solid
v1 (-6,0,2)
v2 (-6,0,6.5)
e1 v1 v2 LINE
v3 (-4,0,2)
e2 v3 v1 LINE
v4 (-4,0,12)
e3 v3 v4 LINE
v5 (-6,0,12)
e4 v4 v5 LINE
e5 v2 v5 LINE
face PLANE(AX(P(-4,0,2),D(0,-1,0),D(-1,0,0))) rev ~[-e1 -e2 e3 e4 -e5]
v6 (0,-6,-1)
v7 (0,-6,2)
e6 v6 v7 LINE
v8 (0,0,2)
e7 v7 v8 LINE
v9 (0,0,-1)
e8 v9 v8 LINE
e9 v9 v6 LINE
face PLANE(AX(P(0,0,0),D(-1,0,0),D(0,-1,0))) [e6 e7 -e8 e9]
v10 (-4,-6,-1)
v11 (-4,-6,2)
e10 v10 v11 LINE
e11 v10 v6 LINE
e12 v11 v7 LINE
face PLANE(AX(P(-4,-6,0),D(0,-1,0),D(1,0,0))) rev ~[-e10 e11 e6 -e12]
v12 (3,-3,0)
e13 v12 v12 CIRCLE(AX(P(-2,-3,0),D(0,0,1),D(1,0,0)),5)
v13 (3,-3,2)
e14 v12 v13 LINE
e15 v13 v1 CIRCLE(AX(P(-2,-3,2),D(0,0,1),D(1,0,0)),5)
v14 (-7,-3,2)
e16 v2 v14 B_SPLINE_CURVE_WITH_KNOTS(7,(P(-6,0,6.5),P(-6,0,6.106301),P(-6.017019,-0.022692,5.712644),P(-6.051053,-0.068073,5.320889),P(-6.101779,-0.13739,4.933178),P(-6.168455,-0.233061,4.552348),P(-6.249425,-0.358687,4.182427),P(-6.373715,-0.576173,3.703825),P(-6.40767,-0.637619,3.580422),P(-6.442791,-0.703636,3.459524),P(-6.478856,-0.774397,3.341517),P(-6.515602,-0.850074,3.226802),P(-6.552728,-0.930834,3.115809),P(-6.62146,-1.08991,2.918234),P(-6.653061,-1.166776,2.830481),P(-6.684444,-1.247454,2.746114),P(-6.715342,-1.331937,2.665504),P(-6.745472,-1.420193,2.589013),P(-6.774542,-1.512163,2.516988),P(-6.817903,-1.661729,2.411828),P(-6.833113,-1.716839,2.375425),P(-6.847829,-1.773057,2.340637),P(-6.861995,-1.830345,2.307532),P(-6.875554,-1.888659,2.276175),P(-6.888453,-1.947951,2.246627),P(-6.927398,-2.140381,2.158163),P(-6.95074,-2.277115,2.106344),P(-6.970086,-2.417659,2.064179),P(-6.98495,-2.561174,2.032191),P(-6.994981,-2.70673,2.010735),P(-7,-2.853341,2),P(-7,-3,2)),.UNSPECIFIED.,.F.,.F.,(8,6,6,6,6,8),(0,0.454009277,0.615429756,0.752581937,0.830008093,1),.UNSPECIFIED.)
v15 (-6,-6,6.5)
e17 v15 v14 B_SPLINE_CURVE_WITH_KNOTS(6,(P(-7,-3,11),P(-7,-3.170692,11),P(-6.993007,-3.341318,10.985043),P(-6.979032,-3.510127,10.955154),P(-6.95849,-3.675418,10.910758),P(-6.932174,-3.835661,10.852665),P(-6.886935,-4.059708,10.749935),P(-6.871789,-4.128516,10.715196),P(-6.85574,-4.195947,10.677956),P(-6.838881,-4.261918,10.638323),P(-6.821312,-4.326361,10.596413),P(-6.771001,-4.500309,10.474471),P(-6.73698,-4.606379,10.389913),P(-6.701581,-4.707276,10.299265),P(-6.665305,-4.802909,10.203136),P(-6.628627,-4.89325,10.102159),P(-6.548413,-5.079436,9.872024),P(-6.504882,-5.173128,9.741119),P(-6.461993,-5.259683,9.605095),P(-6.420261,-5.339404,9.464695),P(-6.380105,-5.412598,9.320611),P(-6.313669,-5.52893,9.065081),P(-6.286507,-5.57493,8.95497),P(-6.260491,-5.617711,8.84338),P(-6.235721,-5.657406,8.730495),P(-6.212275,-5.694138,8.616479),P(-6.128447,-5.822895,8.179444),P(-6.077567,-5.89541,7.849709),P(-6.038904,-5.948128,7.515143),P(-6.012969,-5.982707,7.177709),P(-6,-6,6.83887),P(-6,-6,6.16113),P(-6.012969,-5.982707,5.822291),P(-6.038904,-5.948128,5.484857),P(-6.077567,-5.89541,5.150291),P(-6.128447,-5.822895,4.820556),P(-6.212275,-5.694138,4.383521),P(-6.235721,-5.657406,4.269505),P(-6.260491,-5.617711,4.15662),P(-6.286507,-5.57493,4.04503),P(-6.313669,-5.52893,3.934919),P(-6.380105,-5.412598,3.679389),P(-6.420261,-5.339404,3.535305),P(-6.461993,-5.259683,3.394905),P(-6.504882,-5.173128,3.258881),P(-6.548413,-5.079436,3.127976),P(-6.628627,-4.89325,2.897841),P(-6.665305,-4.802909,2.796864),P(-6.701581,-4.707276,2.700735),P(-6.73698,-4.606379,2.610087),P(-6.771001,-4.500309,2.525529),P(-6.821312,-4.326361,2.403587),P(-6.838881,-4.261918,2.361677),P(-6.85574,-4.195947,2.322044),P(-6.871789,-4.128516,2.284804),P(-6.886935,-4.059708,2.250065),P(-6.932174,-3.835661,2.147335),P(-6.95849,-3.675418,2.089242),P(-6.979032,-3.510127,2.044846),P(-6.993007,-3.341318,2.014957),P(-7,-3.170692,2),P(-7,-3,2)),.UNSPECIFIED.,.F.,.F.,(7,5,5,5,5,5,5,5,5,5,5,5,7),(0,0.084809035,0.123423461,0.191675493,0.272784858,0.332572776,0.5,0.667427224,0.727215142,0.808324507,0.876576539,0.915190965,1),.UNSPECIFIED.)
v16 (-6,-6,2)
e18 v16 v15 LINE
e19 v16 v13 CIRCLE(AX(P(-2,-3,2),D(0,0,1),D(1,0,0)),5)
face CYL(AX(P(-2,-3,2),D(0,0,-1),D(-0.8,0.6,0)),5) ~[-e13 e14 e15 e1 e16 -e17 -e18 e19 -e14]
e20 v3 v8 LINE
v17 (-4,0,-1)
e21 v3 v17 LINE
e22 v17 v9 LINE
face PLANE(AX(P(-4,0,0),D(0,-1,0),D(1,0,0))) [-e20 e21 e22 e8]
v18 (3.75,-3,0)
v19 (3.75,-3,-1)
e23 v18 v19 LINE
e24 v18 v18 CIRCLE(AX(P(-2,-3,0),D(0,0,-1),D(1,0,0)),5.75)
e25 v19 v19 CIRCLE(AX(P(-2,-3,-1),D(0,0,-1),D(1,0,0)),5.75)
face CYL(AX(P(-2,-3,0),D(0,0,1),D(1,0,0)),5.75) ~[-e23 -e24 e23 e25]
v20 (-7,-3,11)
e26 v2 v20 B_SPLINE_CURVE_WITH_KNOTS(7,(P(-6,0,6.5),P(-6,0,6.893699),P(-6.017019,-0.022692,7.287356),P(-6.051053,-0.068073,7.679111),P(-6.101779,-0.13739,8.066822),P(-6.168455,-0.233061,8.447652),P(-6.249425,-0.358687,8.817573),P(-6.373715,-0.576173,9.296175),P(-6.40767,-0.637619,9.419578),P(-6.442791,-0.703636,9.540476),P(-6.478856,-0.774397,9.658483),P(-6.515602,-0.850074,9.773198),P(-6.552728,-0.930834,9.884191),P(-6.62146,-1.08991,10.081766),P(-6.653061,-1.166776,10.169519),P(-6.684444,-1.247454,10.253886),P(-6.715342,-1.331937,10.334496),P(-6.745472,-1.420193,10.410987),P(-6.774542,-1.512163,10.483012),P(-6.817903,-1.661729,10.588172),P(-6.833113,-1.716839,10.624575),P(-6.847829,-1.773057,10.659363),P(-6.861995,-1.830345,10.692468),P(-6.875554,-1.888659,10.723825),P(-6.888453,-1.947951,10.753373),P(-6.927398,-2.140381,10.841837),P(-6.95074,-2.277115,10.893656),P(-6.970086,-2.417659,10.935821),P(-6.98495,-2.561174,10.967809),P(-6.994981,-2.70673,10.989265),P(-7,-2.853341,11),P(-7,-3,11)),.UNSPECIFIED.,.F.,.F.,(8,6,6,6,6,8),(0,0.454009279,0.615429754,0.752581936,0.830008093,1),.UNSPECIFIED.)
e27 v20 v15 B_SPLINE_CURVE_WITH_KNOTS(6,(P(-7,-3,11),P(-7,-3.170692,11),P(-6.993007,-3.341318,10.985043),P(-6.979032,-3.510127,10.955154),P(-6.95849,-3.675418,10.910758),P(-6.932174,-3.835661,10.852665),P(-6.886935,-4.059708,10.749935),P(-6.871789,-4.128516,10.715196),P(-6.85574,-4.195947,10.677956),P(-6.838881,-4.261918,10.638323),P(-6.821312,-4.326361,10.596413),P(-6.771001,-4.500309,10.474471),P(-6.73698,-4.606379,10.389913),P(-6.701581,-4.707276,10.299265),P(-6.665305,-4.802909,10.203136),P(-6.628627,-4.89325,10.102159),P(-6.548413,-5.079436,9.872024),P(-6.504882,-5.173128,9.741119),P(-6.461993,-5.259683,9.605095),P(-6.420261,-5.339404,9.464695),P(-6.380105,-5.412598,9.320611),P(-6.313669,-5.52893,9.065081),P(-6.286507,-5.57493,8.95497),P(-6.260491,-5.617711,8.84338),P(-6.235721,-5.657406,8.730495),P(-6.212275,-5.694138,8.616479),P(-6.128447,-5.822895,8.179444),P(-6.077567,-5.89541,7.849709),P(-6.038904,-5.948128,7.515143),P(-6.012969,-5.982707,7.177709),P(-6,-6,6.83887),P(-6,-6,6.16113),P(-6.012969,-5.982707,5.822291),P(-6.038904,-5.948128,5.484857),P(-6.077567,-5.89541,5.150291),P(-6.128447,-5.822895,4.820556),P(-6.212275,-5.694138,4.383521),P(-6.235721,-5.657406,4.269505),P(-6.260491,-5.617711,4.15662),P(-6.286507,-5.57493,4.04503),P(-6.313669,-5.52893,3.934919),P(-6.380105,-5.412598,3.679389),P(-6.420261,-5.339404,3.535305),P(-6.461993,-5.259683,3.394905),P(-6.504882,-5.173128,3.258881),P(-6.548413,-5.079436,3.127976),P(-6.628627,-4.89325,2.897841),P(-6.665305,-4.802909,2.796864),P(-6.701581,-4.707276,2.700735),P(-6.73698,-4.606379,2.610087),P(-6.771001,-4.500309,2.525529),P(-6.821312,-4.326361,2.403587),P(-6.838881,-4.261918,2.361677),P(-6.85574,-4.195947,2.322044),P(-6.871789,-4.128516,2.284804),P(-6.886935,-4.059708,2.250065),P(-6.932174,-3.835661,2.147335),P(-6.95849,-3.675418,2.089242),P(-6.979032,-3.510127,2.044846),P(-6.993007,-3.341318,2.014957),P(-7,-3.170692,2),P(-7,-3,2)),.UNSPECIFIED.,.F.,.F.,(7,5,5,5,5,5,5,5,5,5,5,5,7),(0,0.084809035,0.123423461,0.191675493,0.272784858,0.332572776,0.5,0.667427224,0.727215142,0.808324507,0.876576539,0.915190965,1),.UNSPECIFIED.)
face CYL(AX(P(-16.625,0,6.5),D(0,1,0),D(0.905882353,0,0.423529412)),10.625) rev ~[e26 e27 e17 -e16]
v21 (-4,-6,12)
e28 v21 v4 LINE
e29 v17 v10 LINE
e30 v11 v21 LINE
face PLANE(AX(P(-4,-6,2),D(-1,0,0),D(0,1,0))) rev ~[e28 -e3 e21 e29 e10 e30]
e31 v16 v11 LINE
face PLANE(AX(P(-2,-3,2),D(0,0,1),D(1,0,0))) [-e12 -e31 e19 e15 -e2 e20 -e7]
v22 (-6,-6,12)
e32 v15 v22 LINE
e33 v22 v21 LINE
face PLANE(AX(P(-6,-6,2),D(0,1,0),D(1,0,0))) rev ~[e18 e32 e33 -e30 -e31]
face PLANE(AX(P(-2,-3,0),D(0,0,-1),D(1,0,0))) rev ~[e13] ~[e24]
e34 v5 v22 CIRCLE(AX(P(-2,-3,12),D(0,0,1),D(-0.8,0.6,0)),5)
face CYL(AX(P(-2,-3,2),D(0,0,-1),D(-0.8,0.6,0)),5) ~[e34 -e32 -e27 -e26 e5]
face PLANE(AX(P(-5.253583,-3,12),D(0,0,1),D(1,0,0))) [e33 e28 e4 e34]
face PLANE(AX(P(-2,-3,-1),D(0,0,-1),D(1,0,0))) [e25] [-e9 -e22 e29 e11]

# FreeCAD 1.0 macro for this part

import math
import FreeCAD as App
import Part
import Sketcher
from FreeCAD import Vector
Q = App.Units.Quantity

doc = App.newDocument("Part")
body = doc.addObject("PartDesign::Body", "Body")

sketch1 = body.newObject("Sketcher::SketchObject", "Sketch")
sketch1.AttachmentSupport = (doc.getObject("XY_Plane"), [""])
sketch1.MapMode = "FlatFace"
sketch1.addGeometry([
    Part.Circle(Vector(-2, -3, 0), Vector(0, 0, 1), 5),
    Part.LineSegment(Vector(0, -6, 0), Vector(-4, -6, 0)),
    Part.LineSegment(Vector(-4, -6, 0), Vector(-4, 0, 0)),
    Part.LineSegment(Vector(-4, 0, 0), Vector(0, 0, 0)),
    Part.LineSegment(Vector(0, 0, 0), Vector(0, -6, 0)),
], False)
sketch1.addConstraint([
    Sketcher.Constraint("Coincident", 1, 2, 2, 1),
    Sketcher.Constraint("Coincident", 2, 2, 3, 1),
    Sketcher.Constraint("Coincident", 3, 2, 4, 1),
    Sketcher.Constraint("Coincident", 4, 2, 1, 1),
    Sketcher.Constraint("Horizontal", 1),
    Sketcher.Constraint("Vertical", 2),
    Sketcher.Constraint("Horizontal", 3),
    Sketcher.Constraint("Vertical", 4),
    Sketcher.Constraint("Coincident", 3, 2, -1, 1),
    Sketcher.Constraint("Diameter", 0, Q("10 mm")),
    Sketcher.Constraint("DistanceX", 1, 2, 1, 1, Q("4 mm")),
    Sketcher.Constraint("DistanceY", 2, 1, 2, 2, Q("6 mm")),
    Sketcher.Constraint("DistanceX", 0, 3, -1, 1, Q("2 mm")),
    Sketcher.Constraint("DistanceY", 0, 3, -1, 1, Q("3 mm")),
])
pad1 = body.newObject("PartDesign::Pad", "Pad")
pad1.Profile = sketch1
pad1.Length = 2

sketch2 = body.newObject("Sketcher::SketchObject", "Sketch001")
sketch2.AttachmentSupport = (doc.getObject("XY_Plane"), [""])
sketch2.MapMode = "FlatFace"
sketch2.addGeometry([
    Part.Circle(Vector(-2, -3, 0), Vector(0, 0, 1), 5.8),
    Part.LineSegment(Vector(0, 0, 0), Vector(-4, 0, 0)),
    Part.LineSegment(Vector(-4, 0, 0), Vector(-4, -6, 0)),
    Part.LineSegment(Vector(-4, -6, 0), Vector(0, -6, 0)),
    Part.LineSegment(Vector(0, -6, 0), Vector(0, 0, 0)),
], False)
sketch2.addConstraint([
    Sketcher.Constraint("Coincident", 1, 2, 2, 1),
    Sketcher.Constraint("Coincident", 2, 2, 3, 1),
    Sketcher.Constraint("Coincident", 3, 2, 4, 1),
    Sketcher.Constraint("Coincident", 4, 2, 1, 1),
    Sketcher.Constraint("Horizontal", 1),
    Sketcher.Constraint("Vertical", 2),
    Sketcher.Constraint("Horizontal", 3),
    Sketcher.Constraint("Vertical", 4),
    Sketcher.Constraint("Coincident", 4, 2, -1, 1),
    Sketcher.Constraint("Diameter", 0, Q("11.5 mm")),
    Sketcher.Constraint("DistanceX", 1, 2, 1, 1, Q("4 mm")),
    Sketcher.Constraint("DistanceY", 2, 2, 2, 1, Q("6 mm")),
    Sketcher.Constraint("DistanceX", 0, 3, -1, 1, Q("2 mm")),
    Sketcher.Constraint("DistanceY", 0, 3, -1, 1, Q("3 mm")),
])
pad2 = body.newObject("PartDesign::Pad", "Pad001")
pad2.Profile = sketch2
pad2.Length = 1
pad2.Reversed = True

sketch3 = body.newObject("Sketcher::SketchObject", "Sketch002")
sketch3.AttachmentSupport = (doc.getObject("XY_Plane"), [""])
sketch3.MapMode = "FlatFace"
sketch3.AttachmentOffset = App.Placement(Vector(0, 0, 2), App.Rotation())
sketch3.addGeometry([
    Part.LineSegment(Vector(-4, -6, 0), Vector(-4, 0, 0)),
    Part.LineSegment(Vector(-4, 0, 0), Vector(-6, 0, 0)),
    Part.ArcOfCircle(Part.Circle(Vector(-2, -3, 0), Vector(0, 0, 1), 5), math.radians(143), math.radians(217)),
    Part.LineSegment(Vector(-6, -6, 0), Vector(-4, -6, 0)),
], False)
sketch3.addConstraint([
    Sketcher.Constraint("Coincident", 0, 2, 1, 1),
    Sketcher.Constraint("Coincident", 1, 2, 2, 1),
    Sketcher.Constraint("Coincident", 2, 2, 3, 1),
    Sketcher.Constraint("Coincident", 3, 2, 0, 1),
    Sketcher.Constraint("Vertical", 0),
    Sketcher.Constraint("Horizontal", 1),
    Sketcher.Constraint("Horizontal", 3),
    Sketcher.Constraint("PointOnObject", 0, 2, -1),
    Sketcher.Constraint("Vertical", 1, 2, 2, 2),
    Sketcher.Constraint("Radius", 2, Q("5 mm")),
    Sketcher.Constraint("DistanceX", 1, 2, 1, 1, Q("2 mm")),
    Sketcher.Constraint("DistanceY", 0, 1, 0, 2, Q("6 mm")),
    Sketcher.Constraint("DistanceX", 2, 3, -1, 1, Q("2 mm")),
])
pad3 = body.newObject("PartDesign::Pad", "Pad002")
pad3.Profile = sketch3
pad3.Length = 10

sketch4 = body.newObject("Sketcher::SketchObject", "Sketch003")
sketch4.AttachmentSupport = (doc.getObject("XZ_Plane"), [""])
sketch4.MapMode = "FlatFace"
sketch4.addGeometry([
    Part.LineSegment(Vector(-7, 2, 0), Vector(-7, 11, 0)),
    Part.ArcOfCircle(Part.Circle(Vector(-17, 6, 0), Vector(0, 0, 1), 11), math.radians(-25), math.radians(25)),
], False)
sketch4.addConstraint([
    Sketcher.Constraint("Coincident", 0, 1, 1, 1),
    Sketcher.Constraint("Coincident", 1, 2, 0, 2),
    Sketcher.Constraint("Vertical", 0),
    Sketcher.Constraint("DistanceY", 0, 1, 0, 2, Q("9 mm")),
    Sketcher.Constraint("DistanceX", 0, 1, -1, 1, Q("7 mm")),
    Sketcher.Constraint("DistanceY", -1, 1, 0, 1, Q("2 mm")),
    Sketcher.Constraint("Radius", 1, Q("10.625 mm")),
])
pocket1 = body.newObject("PartDesign::Pocket", "Pocket")
pocket1.Profile = sketch4
pocket1.Type = "ThroughAll"
pocket1.Reversed = True

doc.recompute()
